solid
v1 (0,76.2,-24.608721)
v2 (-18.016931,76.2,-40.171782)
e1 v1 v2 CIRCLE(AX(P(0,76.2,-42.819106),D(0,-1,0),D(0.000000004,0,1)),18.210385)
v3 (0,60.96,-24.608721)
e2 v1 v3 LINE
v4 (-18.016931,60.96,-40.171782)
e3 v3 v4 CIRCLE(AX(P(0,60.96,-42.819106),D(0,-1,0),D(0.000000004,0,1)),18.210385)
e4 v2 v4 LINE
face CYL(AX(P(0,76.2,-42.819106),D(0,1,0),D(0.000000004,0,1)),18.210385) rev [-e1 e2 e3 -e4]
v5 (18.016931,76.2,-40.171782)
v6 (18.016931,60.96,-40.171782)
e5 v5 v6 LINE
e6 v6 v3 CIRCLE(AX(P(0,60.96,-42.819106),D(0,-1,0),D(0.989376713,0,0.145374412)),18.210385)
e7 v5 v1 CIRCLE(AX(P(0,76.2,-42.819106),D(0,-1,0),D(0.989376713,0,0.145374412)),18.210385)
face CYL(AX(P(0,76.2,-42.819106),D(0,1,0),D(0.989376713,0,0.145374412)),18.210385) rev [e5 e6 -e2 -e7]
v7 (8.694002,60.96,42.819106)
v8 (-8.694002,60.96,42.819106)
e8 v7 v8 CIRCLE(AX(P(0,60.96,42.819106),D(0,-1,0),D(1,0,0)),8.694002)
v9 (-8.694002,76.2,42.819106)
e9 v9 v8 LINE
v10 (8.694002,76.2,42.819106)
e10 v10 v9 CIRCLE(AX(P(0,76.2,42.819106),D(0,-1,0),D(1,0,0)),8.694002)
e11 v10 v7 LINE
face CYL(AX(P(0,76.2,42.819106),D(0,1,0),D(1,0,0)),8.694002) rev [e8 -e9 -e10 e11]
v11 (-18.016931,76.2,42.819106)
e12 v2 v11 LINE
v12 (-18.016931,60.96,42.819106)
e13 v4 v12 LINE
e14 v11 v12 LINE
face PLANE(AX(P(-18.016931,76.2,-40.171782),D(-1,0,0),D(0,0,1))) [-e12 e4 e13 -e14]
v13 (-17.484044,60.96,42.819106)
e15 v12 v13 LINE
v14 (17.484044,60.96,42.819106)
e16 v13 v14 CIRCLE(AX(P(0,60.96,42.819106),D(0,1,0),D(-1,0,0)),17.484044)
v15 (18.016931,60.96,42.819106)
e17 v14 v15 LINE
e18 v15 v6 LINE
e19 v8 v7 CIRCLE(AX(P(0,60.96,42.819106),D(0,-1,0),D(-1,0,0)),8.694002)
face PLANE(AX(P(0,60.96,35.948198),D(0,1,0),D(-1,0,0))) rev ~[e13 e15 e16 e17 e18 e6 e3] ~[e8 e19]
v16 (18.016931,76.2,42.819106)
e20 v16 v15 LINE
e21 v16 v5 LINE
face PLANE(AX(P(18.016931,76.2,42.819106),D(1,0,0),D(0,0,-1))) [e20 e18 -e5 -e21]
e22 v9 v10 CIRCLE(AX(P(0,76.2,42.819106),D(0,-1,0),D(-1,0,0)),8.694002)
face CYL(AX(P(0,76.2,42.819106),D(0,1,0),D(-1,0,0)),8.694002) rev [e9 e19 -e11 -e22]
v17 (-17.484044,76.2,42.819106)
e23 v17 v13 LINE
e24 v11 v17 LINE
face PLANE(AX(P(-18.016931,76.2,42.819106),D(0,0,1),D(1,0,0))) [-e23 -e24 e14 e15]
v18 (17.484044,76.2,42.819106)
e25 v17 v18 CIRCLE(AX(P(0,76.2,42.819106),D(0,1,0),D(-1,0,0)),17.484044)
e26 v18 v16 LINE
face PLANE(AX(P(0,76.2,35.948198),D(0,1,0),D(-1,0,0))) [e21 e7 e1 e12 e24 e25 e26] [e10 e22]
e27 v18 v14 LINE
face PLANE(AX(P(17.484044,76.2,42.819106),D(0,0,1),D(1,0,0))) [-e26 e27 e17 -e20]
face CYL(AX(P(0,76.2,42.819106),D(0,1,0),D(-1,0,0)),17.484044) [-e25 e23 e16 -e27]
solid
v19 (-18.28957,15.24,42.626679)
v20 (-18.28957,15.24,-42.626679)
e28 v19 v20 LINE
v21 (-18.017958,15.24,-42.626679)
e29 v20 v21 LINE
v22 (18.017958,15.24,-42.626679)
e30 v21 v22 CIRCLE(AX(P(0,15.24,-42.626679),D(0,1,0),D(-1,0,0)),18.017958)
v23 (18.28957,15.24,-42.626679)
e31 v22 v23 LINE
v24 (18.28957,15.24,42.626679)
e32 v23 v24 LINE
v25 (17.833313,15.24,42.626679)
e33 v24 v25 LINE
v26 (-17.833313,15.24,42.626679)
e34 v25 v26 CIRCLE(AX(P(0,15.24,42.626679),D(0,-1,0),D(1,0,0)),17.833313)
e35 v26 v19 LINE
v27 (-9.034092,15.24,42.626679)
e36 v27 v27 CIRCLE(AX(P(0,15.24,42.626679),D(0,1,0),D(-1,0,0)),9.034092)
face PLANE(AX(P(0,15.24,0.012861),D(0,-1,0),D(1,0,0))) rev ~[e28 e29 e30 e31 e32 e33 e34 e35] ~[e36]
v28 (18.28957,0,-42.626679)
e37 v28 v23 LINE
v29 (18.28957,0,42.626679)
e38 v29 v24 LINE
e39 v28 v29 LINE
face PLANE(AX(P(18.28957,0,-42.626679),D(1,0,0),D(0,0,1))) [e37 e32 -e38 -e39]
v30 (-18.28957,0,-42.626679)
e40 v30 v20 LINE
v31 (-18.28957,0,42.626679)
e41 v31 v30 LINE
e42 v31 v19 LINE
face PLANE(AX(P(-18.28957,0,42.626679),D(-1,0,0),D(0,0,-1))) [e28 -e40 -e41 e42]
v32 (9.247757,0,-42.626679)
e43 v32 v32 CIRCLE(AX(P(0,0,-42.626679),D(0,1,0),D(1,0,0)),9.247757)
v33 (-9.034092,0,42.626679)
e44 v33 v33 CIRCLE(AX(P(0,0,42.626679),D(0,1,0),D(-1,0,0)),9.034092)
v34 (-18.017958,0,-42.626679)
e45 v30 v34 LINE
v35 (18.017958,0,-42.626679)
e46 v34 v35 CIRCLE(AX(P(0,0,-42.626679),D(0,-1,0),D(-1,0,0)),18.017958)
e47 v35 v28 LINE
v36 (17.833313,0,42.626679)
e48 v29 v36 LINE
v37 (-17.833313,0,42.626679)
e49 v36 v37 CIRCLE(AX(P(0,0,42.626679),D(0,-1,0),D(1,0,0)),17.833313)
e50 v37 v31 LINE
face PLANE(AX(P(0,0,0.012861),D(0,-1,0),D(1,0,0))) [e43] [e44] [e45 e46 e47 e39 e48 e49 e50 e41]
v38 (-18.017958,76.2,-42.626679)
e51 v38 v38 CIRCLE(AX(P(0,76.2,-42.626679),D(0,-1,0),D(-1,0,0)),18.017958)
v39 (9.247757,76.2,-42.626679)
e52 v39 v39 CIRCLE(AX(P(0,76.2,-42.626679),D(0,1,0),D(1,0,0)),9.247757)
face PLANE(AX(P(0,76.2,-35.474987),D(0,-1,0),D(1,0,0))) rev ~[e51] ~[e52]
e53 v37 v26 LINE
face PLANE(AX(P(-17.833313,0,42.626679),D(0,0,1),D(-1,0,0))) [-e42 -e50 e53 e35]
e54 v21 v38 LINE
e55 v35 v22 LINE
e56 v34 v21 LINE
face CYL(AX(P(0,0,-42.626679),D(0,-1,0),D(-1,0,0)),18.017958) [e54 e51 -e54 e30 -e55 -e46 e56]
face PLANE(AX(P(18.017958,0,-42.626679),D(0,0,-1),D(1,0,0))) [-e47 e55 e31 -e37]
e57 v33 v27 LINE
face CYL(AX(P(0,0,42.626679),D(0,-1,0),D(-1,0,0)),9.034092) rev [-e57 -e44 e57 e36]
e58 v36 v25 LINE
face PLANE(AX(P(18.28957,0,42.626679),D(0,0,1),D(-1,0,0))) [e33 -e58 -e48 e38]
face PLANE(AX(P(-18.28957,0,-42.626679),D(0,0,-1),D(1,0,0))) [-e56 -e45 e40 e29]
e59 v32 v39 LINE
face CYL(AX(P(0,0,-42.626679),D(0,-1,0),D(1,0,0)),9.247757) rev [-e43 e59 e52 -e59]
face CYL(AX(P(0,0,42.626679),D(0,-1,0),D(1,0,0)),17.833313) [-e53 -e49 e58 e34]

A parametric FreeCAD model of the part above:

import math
import FreeCAD as App
import Part
import Sketcher
from FreeCAD import Vector
Q = App.Units.Quantity

doc = App.newDocument("Part")
params = doc.addObject("Spreadsheet::Sheet", "Params")
for row, (alias, value) in enumerate([
    ("pad1_length", "3 in"),
    ("pad2_length", "0.6 in"),
    ("pad3_length", "0.6 in"),
], start=1):
    params.set(f"A{row}", alias)
    params.set(f"B{row}", "=" + value)
    params.setAlias(f"B{row}", alias)

body = doc.addObject("PartDesign::Body", "Body")

# Sketch on XZ plane
sketch1 = doc.addObject("Sketcher::SketchObject", "Sketch")
body.addObject(sketch1)
sketch1.AttachmentSupport = (doc.XZ_Plane, [""])
sketch1.MapMode = "FlatFace"
sketch1.addGeometry([
    Part.Circle(Vector(0, -43, 0), Vector(0, 0, 1), 18),
    Part.Circle(Vector(0, -43, 0), Vector(0, 0, 1), 9),
], False)
sketch1.addConstraint([
    Sketcher.Constraint("Coincident", 1, 3, 0, 3),
    Sketcher.Constraint("PointOnObject", 0, 3, -2),
    Sketcher.Constraint("Diameter", 0, Q("36.035916 mm")),
    Sketcher.Constraint("Diameter", 1, Q("18.495514 mm")),
    Sketcher.Constraint("DistanceY", 0, 3, -1, 1, Q("42.626679 mm")),
])
pad1 = doc.addObject("PartDesign::Pad", "Pad")
body.addObject(pad1)
pad1.Profile = sketch1
pad1.setExpression("Length", "Params.pad1_length")
pad1.Reversed = True

# Sketch on XZ plane
sketch2 = doc.addObject("Sketcher::SketchObject", "Sketch001")
body.addObject(sketch2)
sketch2.AttachmentSupport = (doc.XZ_Plane, [""])
sketch2.MapMode = "FlatFace"
sketch2.addGeometry([
    Part.LineSegment(Vector(18.02, -42.63, 0), Vector(18.29, -42.63, 0)),  # 0
    Part.LineSegment(Vector(18.29, -42.63, 0), Vector(18.29, 42.63, 0)),  # 1
    Part.LineSegment(Vector(18.29, 42.63, 0), Vector(17.83, 42.63, 0)),  # 2
    Part.ArcOfCircle(Part.Circle(Vector(0, 42.63, 0), Vector(0, 0, 1), 17.83), math.radians(0), math.radians(180)),  # 3
    Part.LineSegment(Vector(-17.83, 42.63, 0), Vector(-18.29, 42.63, 0)),  # 4
    Part.LineSegment(Vector(-18.29, 42.63, 0), Vector(-18.29, -42.63, 0)),  # 5
    Part.LineSegment(Vector(-18.29, -42.63, 0), Vector(-18.02, -42.63, 0)),  # 6
    Part.ArcOfCircle(Part.Circle(Vector(0, -42.63, 0), Vector(0, 0, 1), 18.02), math.radians(0), math.radians(180)),  # 7
    Part.Circle(Vector(0, 42.63, 0), Vector(0, 0, 1), 9.03),  # 8
], False)
sketch2.addConstraint([
    Sketcher.Constraint("Coincident", 0, 2, 1, 1),
    Sketcher.Constraint("Coincident", 1, 2, 2, 1),
    Sketcher.Constraint("Coincident", 2, 2, 3, 1),
    Sketcher.Constraint("Coincident", 3, 2, 4, 1),
    Sketcher.Constraint("Coincident", 4, 2, 5, 1),
    Sketcher.Constraint("Coincident", 5, 2, 6, 1),
    Sketcher.Constraint("Coincident", 6, 2, 7, 2),
    Sketcher.Constraint("Coincident", 7, 1, 0, 1),
    Sketcher.Constraint("Horizontal", 0),
    Sketcher.Constraint("Vertical", 1),
    Sketcher.Constraint("Horizontal", 2),
    Sketcher.Constraint("Horizontal", 4),
    Sketcher.Constraint("Vertical", 5),
    Sketcher.Constraint("Horizontal", 6),
    Sketcher.Constraint("Coincident", 8, 3, 3, 3),
    Sketcher.Constraint("Symmetric", 3, 3, 7, 3, -1, 1),
    Sketcher.Constraint("Symmetric", 0, 2, 4, 2, -1, 1),
    Sketcher.Constraint("Symmetric", 2, 2, 3, 2, -2),
    Sketcher.Constraint("Horizontal", 7, 3, 0, 2),
    Sketcher.Constraint("Horizontal", 0, 2, 5, 2),
    Sketcher.Constraint("Radius", 7, Q("18.017958 mm")),
    Sketcher.Constraint("Diameter", 8, Q("18.068184 mm")),
    Sketcher.Constraint("Radius", 3, Q("17.833313 mm")),
    Sketcher.Constraint("DistanceX", 0, 1, 0, 2, Q("0.271612 mm")),
    Sketcher.Constraint("DistanceY", 1, 1, 1, 2, Q("85.253358 mm")),
])
pad2 = doc.addObject("PartDesign::Pad", "Pad001")
body.addObject(pad2)
pad2.Profile = sketch2
pad2.setExpression("Length", "Params.pad2_length")
pad2.Reversed = True
body2 = doc.addObject("PartDesign::Body", "Body001")

# Sketch on XZ plane
sketch3 = doc.addObject("Sketcher::SketchObject", "Sketch002")
body2.addObject(sketch3)
sketch3.AttachmentSupport = (doc.getObject("XZ_Plane001"), [""])
sketch3.MapMode = "FlatFace"
sketch3.AttachmentOffset = App.Placement(Vector(0, 0, -3 * 25.4), App.Rotation())
sketch3.addGeometry([
    Part.ArcOfCircle(Part.Circle(Vector(0, 42.8, 0), Vector(0, 0, 1), 17.5), math.radians(0), math.radians(180)),  # 0
    Part.LineSegment(Vector(17.5, 42.8, 0), Vector(18, 42.8, 0)),  # 1
    Part.LineSegment(Vector(18, 42.8, 0), Vector(18, -40.2, 0)),  # 2
    Part.ArcOfCircle(Part.Circle(Vector(0, -42.8, 0), Vector(0, 0, 1), 18.2), math.radians(8), math.radians(90)),  # 3
    Part.ArcOfCircle(Part.Circle(Vector(0, -42.8, 0), Vector(0, 0, 1), 18.2), math.radians(90), math.radians(172)),  # 4
    Part.LineSegment(Vector(-18, -40.2, 0), Vector(-18, 42.8, 0)),  # 5
    Part.LineSegment(Vector(-18, 42.8, 0), Vector(-17.5, 42.8, 0)),  # 6
    Part.ArcOfCircle(Part.Circle(Vector(0, 42.8, 0), Vector(0, 0, 1), 8.7), math.radians(180), math.radians(360)),  # 7
    Part.ArcOfCircle(Part.Circle(Vector(0, 42.8, 0), Vector(0, 0, 1), 8.7), math.radians(0), math.radians(180)),  # 8
], False)
sketch3.addConstraint([
    Sketcher.Constraint("Coincident", 0, 1, 1, 1),
    Sketcher.Constraint("Coincident", 1, 2, 2, 1),
    Sketcher.Constraint("Coincident", 2, 2, 3, 1),
    Sketcher.Constraint("Tangent", 3, 2, 4, 1),
    Sketcher.Constraint("Coincident", 4, 2, 5, 1),
    Sketcher.Constraint("Coincident", 5, 2, 6, 1),
    Sketcher.Constraint("Coincident", 6, 2, 0, 2),
    Sketcher.Constraint("Tangent", 7, 1, 8, 2),
    Sketcher.Constraint("Coincident", 8, 1, 7, 2),
    Sketcher.Constraint("Horizontal", 1),
    Sketcher.Constraint("Vertical", 2),
    Sketcher.Constraint("Vertical", 5),
    Sketcher.Constraint("Horizontal", 6),
    Sketcher.Constraint("Coincident", 7, 3, 0, 3),
    Sketcher.Constraint("Equal", 3, 4),
    Sketcher.Constraint("Symmetric", 0, 3, 3, 3, -1, 1),
    Sketcher.Constraint("Symmetric", 2, 2, 4, 2, -2),
    Sketcher.Constraint("PointOnObject", 3, 2, -2),
    Sketcher.Constraint("Horizontal", 8, 3, 0, 1),
    Sketcher.Constraint("Horizontal", 1, 2, 5, 2),
    Sketcher.Constraint("Horizontal", 6, 2, 7, 1),
    Sketcher.Constraint("Horizontal", 7, 1, 8, 1),
    Sketcher.Constraint("Radius", 0, Q("17.484044 mm")),
    Sketcher.Constraint("Radius", 3, Q("18.210385 mm")),
    Sketcher.Constraint("Radius", 7, Q("8.694002 mm")),
    Sketcher.Constraint("DistanceX", 1, 1, 1, 2, Q("0.532887 mm")),
    Sketcher.Constraint("DistanceY", 2, 2, 2, 1, Q("82.990887 mm")),
])
pad3 = doc.addObject("PartDesign::Pad", "Pad002")
body2.addObject(pad3)
pad3.Profile = sketch3
pad3.setExpression("Length", "Params.pad3_length")

doc.recompute()
